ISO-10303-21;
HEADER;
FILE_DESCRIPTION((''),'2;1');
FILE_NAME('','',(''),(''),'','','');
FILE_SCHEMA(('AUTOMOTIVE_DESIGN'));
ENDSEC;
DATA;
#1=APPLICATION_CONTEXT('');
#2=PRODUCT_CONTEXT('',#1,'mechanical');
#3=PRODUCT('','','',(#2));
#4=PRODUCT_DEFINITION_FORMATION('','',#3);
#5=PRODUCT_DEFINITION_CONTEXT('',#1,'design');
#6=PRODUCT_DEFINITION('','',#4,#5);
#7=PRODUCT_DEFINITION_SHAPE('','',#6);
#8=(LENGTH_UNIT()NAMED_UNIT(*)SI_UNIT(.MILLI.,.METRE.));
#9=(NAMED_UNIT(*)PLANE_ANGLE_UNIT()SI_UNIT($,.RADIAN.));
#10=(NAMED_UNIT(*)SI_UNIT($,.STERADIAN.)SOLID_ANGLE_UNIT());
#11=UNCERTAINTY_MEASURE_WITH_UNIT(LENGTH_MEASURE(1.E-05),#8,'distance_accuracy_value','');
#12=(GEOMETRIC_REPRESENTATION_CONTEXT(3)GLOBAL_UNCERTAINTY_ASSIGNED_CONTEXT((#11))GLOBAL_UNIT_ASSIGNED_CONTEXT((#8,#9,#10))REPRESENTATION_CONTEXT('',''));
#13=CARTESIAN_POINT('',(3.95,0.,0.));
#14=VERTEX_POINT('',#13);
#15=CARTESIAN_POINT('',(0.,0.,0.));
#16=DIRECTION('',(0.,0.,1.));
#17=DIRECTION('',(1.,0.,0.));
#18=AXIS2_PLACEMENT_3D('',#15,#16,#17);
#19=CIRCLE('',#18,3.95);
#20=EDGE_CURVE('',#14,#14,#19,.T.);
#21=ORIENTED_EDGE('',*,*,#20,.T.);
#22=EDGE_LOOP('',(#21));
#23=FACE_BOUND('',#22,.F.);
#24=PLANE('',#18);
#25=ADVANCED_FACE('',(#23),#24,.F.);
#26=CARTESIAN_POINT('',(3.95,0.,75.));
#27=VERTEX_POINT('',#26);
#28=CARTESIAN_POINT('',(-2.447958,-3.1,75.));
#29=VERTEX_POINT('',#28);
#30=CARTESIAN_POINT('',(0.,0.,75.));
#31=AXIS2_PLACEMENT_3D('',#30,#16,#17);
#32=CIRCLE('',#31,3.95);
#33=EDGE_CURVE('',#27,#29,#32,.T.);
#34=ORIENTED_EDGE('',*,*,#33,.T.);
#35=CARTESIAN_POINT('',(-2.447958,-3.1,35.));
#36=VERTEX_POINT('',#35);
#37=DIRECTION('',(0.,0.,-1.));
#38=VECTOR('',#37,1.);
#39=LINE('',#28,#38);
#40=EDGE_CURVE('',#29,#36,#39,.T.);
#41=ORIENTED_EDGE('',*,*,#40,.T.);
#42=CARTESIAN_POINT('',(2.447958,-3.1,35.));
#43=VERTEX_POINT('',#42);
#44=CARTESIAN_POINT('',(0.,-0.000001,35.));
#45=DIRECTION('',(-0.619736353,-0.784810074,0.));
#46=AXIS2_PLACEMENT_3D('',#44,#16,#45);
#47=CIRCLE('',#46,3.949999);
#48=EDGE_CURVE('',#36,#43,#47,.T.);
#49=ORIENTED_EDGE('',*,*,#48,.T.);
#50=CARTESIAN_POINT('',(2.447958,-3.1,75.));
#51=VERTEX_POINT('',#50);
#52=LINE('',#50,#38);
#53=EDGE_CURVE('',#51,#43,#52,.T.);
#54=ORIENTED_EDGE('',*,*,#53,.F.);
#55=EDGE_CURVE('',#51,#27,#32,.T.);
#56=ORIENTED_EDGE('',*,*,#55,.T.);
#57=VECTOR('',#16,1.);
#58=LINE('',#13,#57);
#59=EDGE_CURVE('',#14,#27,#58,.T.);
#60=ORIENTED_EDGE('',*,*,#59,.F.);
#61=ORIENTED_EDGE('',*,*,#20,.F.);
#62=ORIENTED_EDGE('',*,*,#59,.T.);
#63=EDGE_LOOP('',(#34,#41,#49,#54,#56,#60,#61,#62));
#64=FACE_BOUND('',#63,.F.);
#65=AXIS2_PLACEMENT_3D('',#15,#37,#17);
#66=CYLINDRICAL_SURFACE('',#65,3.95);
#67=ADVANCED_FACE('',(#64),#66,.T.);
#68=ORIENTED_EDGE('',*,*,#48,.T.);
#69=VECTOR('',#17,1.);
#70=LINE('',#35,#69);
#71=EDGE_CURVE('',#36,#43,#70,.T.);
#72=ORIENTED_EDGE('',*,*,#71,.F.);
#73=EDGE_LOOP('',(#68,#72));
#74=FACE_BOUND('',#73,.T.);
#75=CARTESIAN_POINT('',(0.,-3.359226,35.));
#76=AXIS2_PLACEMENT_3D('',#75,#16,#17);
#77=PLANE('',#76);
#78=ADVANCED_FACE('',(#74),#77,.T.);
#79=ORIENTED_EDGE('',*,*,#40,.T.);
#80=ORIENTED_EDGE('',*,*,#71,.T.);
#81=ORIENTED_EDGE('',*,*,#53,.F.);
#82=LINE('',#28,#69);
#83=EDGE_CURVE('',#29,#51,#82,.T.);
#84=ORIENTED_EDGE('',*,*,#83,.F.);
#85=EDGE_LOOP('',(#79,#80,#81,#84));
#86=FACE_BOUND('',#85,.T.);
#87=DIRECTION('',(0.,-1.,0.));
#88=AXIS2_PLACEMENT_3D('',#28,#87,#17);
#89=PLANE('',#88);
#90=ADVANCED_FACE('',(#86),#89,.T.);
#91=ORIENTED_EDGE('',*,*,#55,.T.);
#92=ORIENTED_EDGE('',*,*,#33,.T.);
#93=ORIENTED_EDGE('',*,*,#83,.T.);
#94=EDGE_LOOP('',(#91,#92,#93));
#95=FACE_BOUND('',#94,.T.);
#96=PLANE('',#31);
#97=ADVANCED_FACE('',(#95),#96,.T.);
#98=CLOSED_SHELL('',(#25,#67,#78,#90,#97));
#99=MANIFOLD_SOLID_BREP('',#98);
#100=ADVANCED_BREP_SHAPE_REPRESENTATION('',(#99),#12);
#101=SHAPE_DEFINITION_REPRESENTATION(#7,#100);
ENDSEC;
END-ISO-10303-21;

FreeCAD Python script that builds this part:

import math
import FreeCAD as App
import Part
import Sketcher
from FreeCAD import Vector

doc = App.newDocument("Part")
body = doc.addObject("PartDesign::Body", "Body")

# Sketch on XY plane
sketch1 = body.newObject("Sketcher::SketchObject", "Sketch")
sketch1.AttachmentSupport = (doc.getObject("XY_Plane"), [""])
sketch1.MapMode = "FlatFace"
sketch1.addGeometry(Part.Circle(Vector(0, 0, 0), Vector(0, 0, 1), 3.95), False)
sketch1.addConstraint([
    Sketcher.Constraint("Coincident", 0, 3, -1, 1),
    Sketcher.Constraint("Diameter", 0, 7.9),
])
pad1 = body.newObject("PartDesign::Pad", "Pad")
pad1.Profile = sketch1
pad1.Length = 75

# Sketch on XY plane
sketch2 = body.newObject("Sketcher::SketchObject", "Sketch001")
sketch2.AttachmentSupport = (doc.getObject("XY_Plane"), [""])
sketch2.MapMode = "FlatFace"
sketch2.AttachmentOffset = App.Placement(Vector(0, 0, 75), App.Rotation())
sketch2.addGeometry([
    Part.ArcOfCircle(Part.Circle(Vector(0, -0.000001, 0), Vector(0, 0, 1), 3.949999), math.radians(-128.296884), math.radians(-51.703116)),
    Part.LineSegment(Vector(2.447958, -3.1, 0), Vector(-2.447958, -3.1, 0)),
], False)
sketch2.addConstraint([
    Sketcher.Constraint("Coincident", 0, 1, 1, 2),
    Sketcher.Constraint("Coincident", 1, 1, 0, 2),
    Sketcher.Constraint("Horizontal", 1),
    Sketcher.Constraint("Coincident", 0, 3, -1, 1),
    Sketcher.Constraint("Radius", 0, 3.949999),
    Sketcher.Constraint("DistanceY", 0, 1, -1, 1, 3.1),
])
pocket1 = body.newObject("PartDesign::Pocket", "Pocket")
pocket1.Profile = sketch2
pocket1.Length = 40

doc.recompute()
